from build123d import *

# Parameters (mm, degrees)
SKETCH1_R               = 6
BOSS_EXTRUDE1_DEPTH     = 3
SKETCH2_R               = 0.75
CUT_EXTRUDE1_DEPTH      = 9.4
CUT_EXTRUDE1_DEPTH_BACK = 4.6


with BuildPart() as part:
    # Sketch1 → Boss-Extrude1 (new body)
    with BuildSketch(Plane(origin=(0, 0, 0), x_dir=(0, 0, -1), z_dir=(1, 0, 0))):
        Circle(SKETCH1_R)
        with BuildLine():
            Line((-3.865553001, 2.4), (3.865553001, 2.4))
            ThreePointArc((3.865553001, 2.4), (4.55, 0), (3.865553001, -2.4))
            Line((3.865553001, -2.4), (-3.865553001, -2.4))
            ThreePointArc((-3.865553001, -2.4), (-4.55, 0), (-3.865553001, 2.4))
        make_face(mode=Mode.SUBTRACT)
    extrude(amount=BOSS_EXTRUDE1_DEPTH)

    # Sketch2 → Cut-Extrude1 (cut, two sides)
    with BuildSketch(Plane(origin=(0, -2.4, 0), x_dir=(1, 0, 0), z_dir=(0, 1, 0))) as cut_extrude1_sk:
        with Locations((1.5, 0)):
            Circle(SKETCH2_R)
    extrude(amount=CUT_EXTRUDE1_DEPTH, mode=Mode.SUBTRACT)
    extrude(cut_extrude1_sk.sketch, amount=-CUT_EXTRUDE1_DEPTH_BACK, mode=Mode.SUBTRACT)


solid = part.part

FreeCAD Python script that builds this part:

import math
import FreeCAD as App
import Part
import Sketcher

V = App.Vector
Q = App.Units.Quantity

doc = App.newDocument("Part")
body = doc.addObject("PartDesign::Body", "Body")

sketch1 = doc.addObject("Sketcher::SketchObject", "Sketch")
body.addObject(sketch1)
sketch1.AttachmentSupport = (doc.YZ_Plane, [""])
sketch1.MapMode = "FlatFace"
sketch1.addGeometry([
    Part.Circle(V(0, 0, 0), V(0, 0, 1), 6),
    Part.ArcOfCircle(Part.Circle(V(0, 0, 0), V(0, 0, 1), 4.55), math.radians(58.165158), math.radians(121.834842)),
    Part.LineSegment(V(2.4, 3.865553, 0), V(2.4, -3.865553, 0)),
    Part.ArcOfCircle(Part.Circle(V(0, 0, 0), V(0, 0, 1), 4.55), math.radians(-121.834842), math.radians(-58.165158)),
    Part.LineSegment(V(-2.4, -3.865553, 0), V(-2.4, 3.865553, 0)),
], False)
sketch1.addConstraint([
    Sketcher.Constraint("Coincident", 1, 1, 2, 1),
    Sketcher.Constraint("Coincident", 2, 2, 3, 2),
    Sketcher.Constraint("Coincident", 3, 1, 4, 1),
    Sketcher.Constraint("Coincident", 4, 2, 1, 2),
    Sketcher.Constraint("Vertical", 2),
    Sketcher.Constraint("Vertical", 4),
    Sketcher.Constraint("Coincident", 0, 3, -1, 1),
    Sketcher.Constraint("Coincident", 1, 3, -1, 1),
    Sketcher.Constraint("Coincident", 3, 3, -1, 1),
    Sketcher.Constraint("Equal", 1, 3),
    Sketcher.Constraint("Horizontal", 2, 2, 3, 1),
    Sketcher.Constraint("Diameter", 0, Q("12 mm")),
    Sketcher.Constraint("Radius", 1, Q("4.55 mm")),
    Sketcher.Constraint("DistanceX", -1, 1, 1, 1, Q("2.4 mm")),
])
pad1 = doc.addObject("PartDesign::Pad", "Pad")
body.addObject(pad1)
pad1.Profile = sketch1
pad1.Length = 3

sketch2 = doc.addObject("Sketcher::SketchObject", "Sketch001")
body.addObject(sketch2)
sketch2.AttachmentSupport = (doc.XZ_Plane, [""])
sketch2.MapMode = "FlatFace"
sketch2.AttachmentOffset = App.Placement(V(0, 0, 2.4), App.Rotation())
sketch2.addGeometry(Part.Circle(V(1.5, 0, 0), V(0, 0, 1), 0.75), False)
sketch2.addConstraint([
    Sketcher.Constraint("PointOnObject", 0, 3, -1),
    Sketcher.Constraint("Diameter", 0, Q("1.5 mm")),
    Sketcher.Constraint("DistanceX", -1, 1, 0, 3, Q("1.5 mm")),
])
pocket1 = doc.addObject("PartDesign::Pocket", "Pocket")
body.addObject(pocket1)
pocket1.Profile = sketch2
pocket1.Type = "ThroughAll"
pocket1.Midplane = True

doc.recompute()
